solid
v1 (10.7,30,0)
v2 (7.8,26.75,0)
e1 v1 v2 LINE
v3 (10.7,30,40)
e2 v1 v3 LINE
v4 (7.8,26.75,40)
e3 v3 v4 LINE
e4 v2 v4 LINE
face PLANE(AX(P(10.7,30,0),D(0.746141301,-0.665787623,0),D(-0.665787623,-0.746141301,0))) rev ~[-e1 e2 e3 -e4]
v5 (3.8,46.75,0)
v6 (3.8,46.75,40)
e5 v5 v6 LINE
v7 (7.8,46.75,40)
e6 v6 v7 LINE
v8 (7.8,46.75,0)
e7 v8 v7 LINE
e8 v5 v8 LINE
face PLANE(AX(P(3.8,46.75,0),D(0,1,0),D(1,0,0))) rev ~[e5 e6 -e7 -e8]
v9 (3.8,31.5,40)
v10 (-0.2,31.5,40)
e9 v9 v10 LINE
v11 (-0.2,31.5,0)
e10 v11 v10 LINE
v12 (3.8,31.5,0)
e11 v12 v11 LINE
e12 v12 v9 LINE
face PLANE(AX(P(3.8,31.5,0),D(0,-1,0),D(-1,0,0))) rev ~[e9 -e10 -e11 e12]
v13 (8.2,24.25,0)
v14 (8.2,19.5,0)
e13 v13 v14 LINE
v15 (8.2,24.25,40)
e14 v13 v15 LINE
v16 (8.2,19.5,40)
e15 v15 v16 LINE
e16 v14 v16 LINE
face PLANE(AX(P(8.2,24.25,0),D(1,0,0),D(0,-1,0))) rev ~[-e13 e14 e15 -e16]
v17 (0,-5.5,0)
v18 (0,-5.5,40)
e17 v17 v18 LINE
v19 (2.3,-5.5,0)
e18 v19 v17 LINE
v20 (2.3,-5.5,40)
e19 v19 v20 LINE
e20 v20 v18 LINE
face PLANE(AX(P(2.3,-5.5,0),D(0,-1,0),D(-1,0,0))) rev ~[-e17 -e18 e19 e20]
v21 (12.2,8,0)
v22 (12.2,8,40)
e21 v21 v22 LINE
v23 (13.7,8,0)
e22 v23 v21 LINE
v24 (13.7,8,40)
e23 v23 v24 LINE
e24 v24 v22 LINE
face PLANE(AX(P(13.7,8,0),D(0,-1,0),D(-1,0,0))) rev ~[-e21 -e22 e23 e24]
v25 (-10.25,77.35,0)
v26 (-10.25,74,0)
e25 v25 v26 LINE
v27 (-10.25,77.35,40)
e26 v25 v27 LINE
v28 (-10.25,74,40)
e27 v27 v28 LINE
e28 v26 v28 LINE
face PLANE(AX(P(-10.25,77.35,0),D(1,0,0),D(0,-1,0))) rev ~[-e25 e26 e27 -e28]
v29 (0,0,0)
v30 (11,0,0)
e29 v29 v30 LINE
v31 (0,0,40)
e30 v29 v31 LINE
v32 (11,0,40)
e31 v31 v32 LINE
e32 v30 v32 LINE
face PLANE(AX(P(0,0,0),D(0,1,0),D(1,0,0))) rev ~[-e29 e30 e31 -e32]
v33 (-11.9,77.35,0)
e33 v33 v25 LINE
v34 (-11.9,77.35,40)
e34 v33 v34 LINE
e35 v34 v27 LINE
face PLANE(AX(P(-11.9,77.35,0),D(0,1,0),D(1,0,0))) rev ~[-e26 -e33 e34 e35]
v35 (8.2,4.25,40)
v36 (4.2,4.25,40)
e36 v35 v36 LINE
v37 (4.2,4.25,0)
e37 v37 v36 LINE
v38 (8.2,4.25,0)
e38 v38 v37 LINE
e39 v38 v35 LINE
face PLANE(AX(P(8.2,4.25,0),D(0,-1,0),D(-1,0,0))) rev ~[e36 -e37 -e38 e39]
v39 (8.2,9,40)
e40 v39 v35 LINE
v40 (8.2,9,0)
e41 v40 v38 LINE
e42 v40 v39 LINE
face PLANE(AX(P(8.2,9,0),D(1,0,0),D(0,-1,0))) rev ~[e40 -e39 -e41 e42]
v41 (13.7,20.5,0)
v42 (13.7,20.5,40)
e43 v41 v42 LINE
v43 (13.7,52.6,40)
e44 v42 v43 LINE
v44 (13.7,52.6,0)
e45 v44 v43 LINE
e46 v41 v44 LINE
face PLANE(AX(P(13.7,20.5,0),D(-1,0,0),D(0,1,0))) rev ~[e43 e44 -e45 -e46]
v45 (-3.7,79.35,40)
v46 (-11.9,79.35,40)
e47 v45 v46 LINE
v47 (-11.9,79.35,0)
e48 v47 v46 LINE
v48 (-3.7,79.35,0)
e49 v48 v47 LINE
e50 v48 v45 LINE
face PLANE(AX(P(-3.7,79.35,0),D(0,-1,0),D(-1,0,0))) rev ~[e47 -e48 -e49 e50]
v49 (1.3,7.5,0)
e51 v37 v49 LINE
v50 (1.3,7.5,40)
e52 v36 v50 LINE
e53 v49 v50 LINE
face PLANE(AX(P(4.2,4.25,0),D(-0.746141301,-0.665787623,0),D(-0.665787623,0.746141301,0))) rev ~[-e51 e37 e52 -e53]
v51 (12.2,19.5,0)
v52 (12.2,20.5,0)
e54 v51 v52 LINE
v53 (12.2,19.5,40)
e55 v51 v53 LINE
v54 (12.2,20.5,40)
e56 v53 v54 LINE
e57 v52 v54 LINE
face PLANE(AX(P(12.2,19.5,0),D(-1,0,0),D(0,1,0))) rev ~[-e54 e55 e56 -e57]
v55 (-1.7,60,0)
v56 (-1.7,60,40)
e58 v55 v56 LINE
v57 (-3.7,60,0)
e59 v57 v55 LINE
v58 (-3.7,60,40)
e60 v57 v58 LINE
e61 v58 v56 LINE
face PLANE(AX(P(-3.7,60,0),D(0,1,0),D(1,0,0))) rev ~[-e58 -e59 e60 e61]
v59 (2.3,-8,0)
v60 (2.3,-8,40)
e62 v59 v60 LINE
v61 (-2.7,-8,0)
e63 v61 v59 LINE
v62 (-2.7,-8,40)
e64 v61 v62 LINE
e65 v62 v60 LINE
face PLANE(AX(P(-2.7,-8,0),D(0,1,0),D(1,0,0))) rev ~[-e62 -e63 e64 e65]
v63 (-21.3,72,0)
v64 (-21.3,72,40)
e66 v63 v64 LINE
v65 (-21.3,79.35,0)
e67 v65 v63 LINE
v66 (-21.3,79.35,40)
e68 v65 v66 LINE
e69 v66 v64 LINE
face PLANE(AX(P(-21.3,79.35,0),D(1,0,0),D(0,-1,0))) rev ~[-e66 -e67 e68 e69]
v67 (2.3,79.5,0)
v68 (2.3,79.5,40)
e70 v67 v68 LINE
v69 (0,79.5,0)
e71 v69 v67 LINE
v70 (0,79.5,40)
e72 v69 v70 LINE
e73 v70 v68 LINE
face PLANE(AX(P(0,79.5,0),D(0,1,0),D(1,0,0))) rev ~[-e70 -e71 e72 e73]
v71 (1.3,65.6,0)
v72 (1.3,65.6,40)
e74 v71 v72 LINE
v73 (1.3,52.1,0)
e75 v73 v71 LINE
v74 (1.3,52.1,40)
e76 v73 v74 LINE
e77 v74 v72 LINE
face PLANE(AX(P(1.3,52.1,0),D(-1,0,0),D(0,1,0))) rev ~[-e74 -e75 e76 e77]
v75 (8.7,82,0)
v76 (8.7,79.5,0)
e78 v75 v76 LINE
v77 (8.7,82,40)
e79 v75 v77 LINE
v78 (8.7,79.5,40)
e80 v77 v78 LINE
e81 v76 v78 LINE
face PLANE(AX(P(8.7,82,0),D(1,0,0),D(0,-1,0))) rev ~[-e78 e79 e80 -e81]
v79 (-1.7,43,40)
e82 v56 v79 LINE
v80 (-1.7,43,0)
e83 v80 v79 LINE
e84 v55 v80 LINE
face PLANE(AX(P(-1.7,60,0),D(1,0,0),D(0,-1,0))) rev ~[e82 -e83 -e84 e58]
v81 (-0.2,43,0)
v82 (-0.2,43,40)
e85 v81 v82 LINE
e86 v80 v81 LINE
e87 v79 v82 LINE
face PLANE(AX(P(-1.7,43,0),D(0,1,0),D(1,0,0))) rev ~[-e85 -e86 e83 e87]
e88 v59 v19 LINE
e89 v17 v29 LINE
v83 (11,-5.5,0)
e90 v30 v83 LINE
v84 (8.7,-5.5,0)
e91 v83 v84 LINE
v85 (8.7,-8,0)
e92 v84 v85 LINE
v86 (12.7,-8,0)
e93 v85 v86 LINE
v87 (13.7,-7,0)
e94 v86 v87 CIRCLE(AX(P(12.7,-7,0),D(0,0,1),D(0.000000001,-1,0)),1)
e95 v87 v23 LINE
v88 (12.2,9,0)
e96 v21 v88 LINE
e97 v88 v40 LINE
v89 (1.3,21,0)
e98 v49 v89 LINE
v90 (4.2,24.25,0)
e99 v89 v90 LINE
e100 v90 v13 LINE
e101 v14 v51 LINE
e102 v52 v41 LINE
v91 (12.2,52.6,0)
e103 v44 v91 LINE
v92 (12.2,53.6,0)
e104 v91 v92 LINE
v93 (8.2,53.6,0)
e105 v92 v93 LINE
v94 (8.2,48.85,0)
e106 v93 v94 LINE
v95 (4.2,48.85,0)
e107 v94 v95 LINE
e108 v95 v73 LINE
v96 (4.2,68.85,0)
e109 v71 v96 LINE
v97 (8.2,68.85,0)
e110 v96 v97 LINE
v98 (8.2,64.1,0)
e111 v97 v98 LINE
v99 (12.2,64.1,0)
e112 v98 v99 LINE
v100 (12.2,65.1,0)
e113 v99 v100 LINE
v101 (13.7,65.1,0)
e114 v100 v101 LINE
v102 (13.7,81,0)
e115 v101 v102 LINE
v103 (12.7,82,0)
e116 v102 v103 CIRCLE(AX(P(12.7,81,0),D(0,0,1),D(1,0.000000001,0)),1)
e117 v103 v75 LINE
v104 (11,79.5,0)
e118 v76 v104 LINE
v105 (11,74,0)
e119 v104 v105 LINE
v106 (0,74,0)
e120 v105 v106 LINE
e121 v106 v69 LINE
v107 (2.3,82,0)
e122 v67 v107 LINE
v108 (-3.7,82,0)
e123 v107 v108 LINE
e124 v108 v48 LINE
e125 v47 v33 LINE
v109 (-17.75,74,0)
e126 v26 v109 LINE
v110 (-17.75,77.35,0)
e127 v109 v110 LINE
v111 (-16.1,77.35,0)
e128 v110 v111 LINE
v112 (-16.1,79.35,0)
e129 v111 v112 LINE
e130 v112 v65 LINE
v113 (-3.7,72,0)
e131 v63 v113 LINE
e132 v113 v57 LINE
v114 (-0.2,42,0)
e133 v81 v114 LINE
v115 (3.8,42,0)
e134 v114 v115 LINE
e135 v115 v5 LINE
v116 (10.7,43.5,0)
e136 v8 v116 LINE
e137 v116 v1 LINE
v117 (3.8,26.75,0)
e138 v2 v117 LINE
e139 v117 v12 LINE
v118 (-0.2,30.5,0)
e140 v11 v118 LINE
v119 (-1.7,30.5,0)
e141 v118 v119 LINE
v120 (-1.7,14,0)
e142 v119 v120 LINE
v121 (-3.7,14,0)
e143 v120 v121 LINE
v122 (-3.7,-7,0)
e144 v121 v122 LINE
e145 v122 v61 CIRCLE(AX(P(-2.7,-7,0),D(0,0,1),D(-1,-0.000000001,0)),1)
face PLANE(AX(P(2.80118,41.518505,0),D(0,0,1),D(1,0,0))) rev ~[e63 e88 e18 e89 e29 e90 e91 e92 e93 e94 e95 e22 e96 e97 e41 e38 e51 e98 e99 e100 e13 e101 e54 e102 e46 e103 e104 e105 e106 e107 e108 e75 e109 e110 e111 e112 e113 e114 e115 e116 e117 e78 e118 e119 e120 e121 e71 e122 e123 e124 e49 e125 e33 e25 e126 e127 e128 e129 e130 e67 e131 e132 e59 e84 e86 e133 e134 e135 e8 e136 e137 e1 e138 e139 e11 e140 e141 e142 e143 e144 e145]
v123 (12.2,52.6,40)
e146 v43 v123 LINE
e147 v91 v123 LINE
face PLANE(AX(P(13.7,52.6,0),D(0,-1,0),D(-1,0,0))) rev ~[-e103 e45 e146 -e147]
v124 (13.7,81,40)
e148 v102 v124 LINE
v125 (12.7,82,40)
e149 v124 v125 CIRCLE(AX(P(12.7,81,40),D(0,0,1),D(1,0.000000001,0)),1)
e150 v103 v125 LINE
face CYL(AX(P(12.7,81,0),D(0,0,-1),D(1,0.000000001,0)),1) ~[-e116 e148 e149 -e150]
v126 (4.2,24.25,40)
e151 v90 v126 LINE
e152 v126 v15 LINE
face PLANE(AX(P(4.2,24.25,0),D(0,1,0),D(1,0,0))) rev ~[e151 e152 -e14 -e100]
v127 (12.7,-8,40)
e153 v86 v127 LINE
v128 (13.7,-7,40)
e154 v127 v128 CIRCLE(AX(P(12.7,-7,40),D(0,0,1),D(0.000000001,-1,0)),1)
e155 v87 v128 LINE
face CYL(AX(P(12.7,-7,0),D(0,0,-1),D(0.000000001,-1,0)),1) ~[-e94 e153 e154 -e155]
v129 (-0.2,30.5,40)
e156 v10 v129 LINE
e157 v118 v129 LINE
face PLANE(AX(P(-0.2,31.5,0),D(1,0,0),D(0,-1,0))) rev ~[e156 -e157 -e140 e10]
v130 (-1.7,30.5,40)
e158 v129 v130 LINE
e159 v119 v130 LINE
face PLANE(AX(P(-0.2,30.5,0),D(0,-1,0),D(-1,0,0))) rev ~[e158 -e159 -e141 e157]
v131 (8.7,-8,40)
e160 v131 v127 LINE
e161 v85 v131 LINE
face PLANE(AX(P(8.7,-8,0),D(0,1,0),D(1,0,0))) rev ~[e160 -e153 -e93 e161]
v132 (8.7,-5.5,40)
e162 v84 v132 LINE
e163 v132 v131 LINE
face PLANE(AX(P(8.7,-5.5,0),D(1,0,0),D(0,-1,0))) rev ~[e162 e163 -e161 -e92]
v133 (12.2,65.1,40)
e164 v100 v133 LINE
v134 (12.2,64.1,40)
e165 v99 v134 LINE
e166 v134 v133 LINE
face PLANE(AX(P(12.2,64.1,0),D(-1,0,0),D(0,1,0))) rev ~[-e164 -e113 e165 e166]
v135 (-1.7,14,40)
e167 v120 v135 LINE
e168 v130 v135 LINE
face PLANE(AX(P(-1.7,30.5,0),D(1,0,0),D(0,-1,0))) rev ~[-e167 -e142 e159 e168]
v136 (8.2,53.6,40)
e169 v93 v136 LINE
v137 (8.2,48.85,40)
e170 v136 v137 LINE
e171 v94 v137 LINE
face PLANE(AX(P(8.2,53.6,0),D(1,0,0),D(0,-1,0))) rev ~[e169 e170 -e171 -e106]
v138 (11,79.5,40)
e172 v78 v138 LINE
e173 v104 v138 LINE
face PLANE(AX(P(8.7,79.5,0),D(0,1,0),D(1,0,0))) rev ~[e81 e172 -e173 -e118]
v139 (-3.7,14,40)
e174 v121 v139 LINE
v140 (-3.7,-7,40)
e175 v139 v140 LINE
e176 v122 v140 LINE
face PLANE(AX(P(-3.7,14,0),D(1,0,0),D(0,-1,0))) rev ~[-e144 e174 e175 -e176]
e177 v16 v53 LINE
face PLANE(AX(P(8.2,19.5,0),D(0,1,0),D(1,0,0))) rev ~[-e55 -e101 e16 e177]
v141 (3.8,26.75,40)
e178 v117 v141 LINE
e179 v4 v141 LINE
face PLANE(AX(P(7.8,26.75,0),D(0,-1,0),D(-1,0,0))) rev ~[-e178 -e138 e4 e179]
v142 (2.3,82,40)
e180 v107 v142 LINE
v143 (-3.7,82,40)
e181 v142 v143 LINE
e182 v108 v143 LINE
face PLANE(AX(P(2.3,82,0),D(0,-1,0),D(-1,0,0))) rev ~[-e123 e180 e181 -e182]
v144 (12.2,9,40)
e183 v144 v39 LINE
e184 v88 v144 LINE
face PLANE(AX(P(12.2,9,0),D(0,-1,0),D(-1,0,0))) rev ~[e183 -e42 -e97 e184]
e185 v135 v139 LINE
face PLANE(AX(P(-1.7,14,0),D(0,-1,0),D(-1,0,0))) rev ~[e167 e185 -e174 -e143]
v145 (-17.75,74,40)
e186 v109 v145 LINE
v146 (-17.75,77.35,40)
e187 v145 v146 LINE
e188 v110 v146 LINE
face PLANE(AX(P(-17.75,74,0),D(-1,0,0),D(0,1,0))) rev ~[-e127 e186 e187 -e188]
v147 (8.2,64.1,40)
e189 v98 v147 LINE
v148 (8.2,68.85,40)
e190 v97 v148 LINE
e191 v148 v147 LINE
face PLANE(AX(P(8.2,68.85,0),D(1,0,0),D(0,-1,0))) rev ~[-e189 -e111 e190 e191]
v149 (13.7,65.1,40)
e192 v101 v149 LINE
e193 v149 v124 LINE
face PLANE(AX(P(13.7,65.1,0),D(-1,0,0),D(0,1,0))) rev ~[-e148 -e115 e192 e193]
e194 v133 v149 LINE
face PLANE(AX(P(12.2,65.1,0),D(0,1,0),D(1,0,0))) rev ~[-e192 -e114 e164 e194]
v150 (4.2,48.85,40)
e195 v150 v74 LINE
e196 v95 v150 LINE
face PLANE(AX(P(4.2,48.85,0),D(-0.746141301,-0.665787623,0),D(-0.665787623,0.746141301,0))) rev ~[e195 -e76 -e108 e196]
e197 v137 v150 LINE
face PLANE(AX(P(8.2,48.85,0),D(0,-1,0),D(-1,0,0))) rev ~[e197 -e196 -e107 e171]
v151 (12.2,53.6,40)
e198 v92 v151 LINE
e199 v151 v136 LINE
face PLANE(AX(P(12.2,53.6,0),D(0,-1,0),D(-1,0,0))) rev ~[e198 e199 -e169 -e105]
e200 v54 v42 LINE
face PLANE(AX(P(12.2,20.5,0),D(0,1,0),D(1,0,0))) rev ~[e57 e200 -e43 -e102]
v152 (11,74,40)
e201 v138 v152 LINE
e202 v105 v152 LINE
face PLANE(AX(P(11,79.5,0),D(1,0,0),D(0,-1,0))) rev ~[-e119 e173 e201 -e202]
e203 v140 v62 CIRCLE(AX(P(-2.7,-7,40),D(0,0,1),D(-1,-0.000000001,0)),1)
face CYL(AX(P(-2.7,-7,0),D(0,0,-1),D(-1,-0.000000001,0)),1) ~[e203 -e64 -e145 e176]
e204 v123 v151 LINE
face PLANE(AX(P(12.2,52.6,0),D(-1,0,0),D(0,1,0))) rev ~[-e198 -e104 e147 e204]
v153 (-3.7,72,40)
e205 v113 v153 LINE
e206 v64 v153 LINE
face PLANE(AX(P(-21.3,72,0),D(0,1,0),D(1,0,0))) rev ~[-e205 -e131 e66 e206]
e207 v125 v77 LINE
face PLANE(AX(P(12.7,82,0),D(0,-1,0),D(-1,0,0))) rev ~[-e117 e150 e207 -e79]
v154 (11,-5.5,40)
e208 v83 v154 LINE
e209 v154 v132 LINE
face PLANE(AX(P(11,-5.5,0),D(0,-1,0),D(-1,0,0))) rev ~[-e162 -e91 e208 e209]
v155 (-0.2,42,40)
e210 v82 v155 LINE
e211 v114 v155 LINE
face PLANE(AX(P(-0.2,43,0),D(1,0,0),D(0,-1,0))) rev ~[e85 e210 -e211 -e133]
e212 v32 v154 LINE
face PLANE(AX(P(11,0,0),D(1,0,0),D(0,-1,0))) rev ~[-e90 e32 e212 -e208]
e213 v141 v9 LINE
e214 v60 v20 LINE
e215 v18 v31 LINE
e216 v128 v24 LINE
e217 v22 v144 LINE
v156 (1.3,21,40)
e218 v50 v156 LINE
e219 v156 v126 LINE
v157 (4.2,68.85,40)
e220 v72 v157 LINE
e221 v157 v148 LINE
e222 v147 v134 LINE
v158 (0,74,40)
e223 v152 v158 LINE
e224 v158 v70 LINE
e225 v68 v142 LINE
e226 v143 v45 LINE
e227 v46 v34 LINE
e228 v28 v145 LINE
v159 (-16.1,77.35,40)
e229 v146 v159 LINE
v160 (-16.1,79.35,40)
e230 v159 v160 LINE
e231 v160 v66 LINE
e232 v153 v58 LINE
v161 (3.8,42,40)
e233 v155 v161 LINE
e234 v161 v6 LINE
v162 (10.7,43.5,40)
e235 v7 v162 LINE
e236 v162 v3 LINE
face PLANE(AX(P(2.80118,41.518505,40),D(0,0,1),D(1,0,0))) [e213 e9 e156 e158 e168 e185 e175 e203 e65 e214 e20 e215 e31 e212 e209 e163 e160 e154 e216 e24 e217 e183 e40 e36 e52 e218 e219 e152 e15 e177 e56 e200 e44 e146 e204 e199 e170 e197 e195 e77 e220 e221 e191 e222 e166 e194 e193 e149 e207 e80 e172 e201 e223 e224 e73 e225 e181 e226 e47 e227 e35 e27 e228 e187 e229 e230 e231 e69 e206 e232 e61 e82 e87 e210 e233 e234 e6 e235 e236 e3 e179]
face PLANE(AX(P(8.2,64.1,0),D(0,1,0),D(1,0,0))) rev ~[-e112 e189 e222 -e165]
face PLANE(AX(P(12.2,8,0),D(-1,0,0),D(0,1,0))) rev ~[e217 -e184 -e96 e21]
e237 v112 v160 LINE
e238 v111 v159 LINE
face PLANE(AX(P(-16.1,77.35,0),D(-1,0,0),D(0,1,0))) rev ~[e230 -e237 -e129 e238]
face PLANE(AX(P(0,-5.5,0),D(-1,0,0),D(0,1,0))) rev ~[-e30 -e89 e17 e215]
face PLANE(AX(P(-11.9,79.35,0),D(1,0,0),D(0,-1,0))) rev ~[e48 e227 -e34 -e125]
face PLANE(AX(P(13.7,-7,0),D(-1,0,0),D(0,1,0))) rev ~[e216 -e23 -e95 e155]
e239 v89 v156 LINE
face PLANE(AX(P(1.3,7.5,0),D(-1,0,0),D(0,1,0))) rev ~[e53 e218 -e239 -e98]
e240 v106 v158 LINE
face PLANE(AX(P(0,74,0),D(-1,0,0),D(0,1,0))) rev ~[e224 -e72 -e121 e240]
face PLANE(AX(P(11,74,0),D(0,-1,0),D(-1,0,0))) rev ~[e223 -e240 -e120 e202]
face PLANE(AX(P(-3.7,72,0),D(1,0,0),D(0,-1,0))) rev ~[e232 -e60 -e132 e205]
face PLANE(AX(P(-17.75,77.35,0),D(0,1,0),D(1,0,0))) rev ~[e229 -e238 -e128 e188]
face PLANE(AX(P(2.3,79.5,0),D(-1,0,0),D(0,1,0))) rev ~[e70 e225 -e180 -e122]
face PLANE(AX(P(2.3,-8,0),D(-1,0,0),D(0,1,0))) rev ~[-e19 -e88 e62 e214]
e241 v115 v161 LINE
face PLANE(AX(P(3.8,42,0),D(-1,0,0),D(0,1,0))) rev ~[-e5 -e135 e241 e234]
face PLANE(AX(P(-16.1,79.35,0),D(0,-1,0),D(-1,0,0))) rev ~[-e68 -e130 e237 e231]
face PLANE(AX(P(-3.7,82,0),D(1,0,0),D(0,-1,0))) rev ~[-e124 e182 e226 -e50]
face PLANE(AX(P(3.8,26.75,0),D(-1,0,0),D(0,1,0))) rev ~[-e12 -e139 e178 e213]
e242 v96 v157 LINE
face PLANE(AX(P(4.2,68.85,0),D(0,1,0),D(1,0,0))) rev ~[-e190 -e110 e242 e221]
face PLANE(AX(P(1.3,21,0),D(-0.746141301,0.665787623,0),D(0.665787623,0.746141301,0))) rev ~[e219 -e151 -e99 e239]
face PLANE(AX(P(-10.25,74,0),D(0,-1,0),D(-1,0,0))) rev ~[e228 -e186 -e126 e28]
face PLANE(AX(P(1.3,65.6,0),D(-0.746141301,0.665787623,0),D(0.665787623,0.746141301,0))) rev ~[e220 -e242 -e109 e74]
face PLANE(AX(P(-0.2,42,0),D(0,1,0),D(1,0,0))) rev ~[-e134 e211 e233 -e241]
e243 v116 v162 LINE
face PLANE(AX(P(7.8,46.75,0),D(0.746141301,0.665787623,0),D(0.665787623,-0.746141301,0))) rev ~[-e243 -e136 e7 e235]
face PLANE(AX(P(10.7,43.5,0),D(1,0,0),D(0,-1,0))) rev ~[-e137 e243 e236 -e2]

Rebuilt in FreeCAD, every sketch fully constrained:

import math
import FreeCAD as App
import Part
import Sketcher

V = App.Vector

doc = App.newDocument("Part")
params = doc.addObject("Spreadsheet::Sheet", "Params")
for row, (alias, value) in enumerate([
    ("sketch1_radius", "1 mm"),
    ("sketch1_width", "5 mm"),
    ("sketch1_width2", "11 mm"),
    ("sketch1_width3", "4 mm"),
    ("sketch1_width4", "2 mm"),
    ("pad1_length", "40 mm"),
], start=1):
    params.set(f"A{row}", alias)
    params.set(f"B{row}", "=" + value)
    params.setAlias(f"B{row}", alias)

body = doc.addObject("PartDesign::Body", "Body")

# Sketch on XY plane
sketch1 = body.newObject("Sketcher::SketchObject", "Sketch")
sketch1.AttachmentSupport = (doc.getObject("XY_Plane"), [""])
sketch1.MapMode = "FlatFace"
sketch1.addGeometry(Part.LineSegment(V(-2.7, -8, 0), V(2.3, -8, 0)), False)
sketch1.addGeometry(Part.LineSegment(V(2.3, -8, 0), V(2.3, -5.5, 0)), False)
sketch1.addGeometry(Part.LineSegment(V(2.3, -5.5, 0), V(0, -5.5, 0)), False)
sketch1.addGeometry(Part.LineSegment(V(0, -5.5, 0), V(0, 0, 0)), False)
sketch1.addGeometry(Part.LineSegment(V(0, 0, 0), V(11, 0, 0)), False)
sketch1.addGeometry(Part.LineSegment(V(11, 0, 0), V(11, -5.5, 0)), False)
sketch1.addGeometry(Part.LineSegment(V(11, -5.5, 0), V(8.7, -5.5, 0)), False)
sketch1.addGeometry(Part.LineSegment(V(8.7, -5.5, 0), V(8.7, -8, 0)), False)
sketch1.addGeometry(Part.LineSegment(V(8.7, -8, 0), V(12.7, -8, 0)), False)
sketch1.addGeometry(Part.ArcOfCircle(Part.Circle(V(12.7, -7, 0), V(0, 0, 1), 1), math.radians(-90), math.radians(0)), False)
sketch1.addGeometry(Part.LineSegment(V(13.7, -7, 0), V(13.7, 8, 0)), False)
sketch1.addGeometry(Part.LineSegment(V(13.7, 8, 0), V(12.2, 8, 0)), False)
sketch1.addGeometry(Part.LineSegment(V(12.2, 8, 0), V(12.2, 9, 0)), False)
sketch1.addGeometry(Part.LineSegment(V(12.2, 9, 0), V(8.2, 9, 0)), False)
sketch1.addGeometry(Part.LineSegment(V(8.2, 9, 0), V(8.2, 4.2, 0)), False)
sketch1.addGeometry(Part.LineSegment(V(8.2, 4.2, 0), V(4.2, 4.2, 0)), False)
sketch1.addGeometry(Part.LineSegment(V(4.2, 4.2, 0), V(1.3, 7.5, 0)), False)
sketch1.addGeometry(Part.LineSegment(V(1.3, 7.5, 0), V(1.3, 21, 0)), False)
sketch1.addGeometry(Part.LineSegment(V(1.3, 21, 0), V(4.2, 24.2, 0)), False)
sketch1.addGeometry(Part.LineSegment(V(4.2, 24.2, 0), V(8.2, 24.2, 0)), False)
sketch1.addGeometry(Part.LineSegment(V(8.2, 24.2, 0), V(8.2, 19.5, 0)), False)
sketch1.addGeometry(Part.LineSegment(V(8.2, 19.5, 0), V(12.2, 19.5, 0)), False)
sketch1.addGeometry(Part.LineSegment(V(12.2, 19.5, 0), V(12.2, 20.5, 0)), False)
sketch1.addGeometry(Part.LineSegment(V(12.2, 20.5, 0), V(13.7, 20.5, 0)), False)
sketch1.addGeometry(Part.LineSegment(V(13.7, 20.5, 0), V(13.7, 52.6, 0)), False)
sketch1.addGeometry(Part.LineSegment(V(13.7, 52.6, 0), V(12.2, 52.6, 0)), False)
sketch1.addGeometry(Part.LineSegment(V(12.2, 52.6, 0), V(12.2, 53.6, 0)), False)
sketch1.addGeometry(Part.LineSegment(V(12.2, 53.6, 0), V(8.2, 53.6, 0)), False)
sketch1.addGeometry(Part.LineSegment(V(8.2, 53.6, 0), V(8.2, 48.9, 0)), False)
sketch1.addGeometry(Part.LineSegment(V(8.2, 48.9, 0), V(4.2, 48.9, 0)), False)
sketch1.addGeometry(Part.LineSegment(V(4.2, 48.9, 0), V(1.3, 52.1, 0)), False)
sketch1.addGeometry(Part.LineSegment(V(1.3, 52.1, 0), V(1.3, 65.6, 0)), False)
sketch1.addGeometry(Part.LineSegment(V(1.3, 65.6, 0), V(4.2, 68.8, 0)), False)
sketch1.addGeometry(Part.LineSegment(V(4.2, 68.8, 0), V(8.2, 68.8, 0)), False)
sketch1.addGeometry(Part.LineSegment(V(8.2, 68.8, 0), V(8.2, 64.1, 0)), False)
sketch1.addGeometry(Part.LineSegment(V(8.2, 64.1, 0), V(12.2, 64.1, 0)), False)
sketch1.addGeometry(Part.LineSegment(V(12.2, 64.1, 0), V(12.2, 65.1, 0)), False)
sketch1.addGeometry(Part.LineSegment(V(12.2, 65.1, 0), V(13.7, 65.1, 0)), False)
sketch1.addGeometry(Part.LineSegment(V(13.7, 65.1, 0), V(13.7, 81, 0)), False)
sketch1.addGeometry(Part.ArcOfCircle(Part.Circle(V(12.7, 81, 0), V(0, 0, 1), 1), math.radians(0), math.radians(90)), False)
sketch1.addGeometry(Part.LineSegment(V(12.7, 82, 0), V(8.7, 82, 0)), False)
sketch1.addGeometry(Part.LineSegment(V(8.7, 82, 0), V(8.7, 79.5, 0)), False)
sketch1.addGeometry(Part.LineSegment(V(8.7, 79.5, 0), V(11, 79.5, 0)), False)
sketch1.addGeometry(Part.LineSegment(V(11, 79.5, 0), V(11, 74, 0)), False)
sketch1.addGeometry(Part.LineSegment(V(11, 74, 0), V(0, 74, 0)), False)
sketch1.addGeometry(Part.LineSegment(V(0, 74, 0), V(0, 79.5, 0)), False)
sketch1.addGeometry(Part.LineSegment(V(0, 79.5, 0), V(2.3, 79.5, 0)), False)
sketch1.addGeometry(Part.LineSegment(V(2.3, 79.5, 0), V(2.3, 82, 0)), False)
sketch1.addGeometry(Part.LineSegment(V(2.3, 82, 0), V(-3.7, 82, 0)), False)
sketch1.addGeometry(Part.LineSegment(V(-3.7, 82, 0), V(-3.7, 79.3, 0)), False)
sketch1.addGeometry(Part.LineSegment(V(-3.7, 79.3, 0), V(-11.9, 79.3, 0)), False)
sketch1.addGeometry(Part.LineSegment(V(-11.9, 79.3, 0), V(-11.9, 77.3, 0)), False)
sketch1.addGeometry(Part.LineSegment(V(-11.9, 77.3, 0), V(-10.2, 77.3, 0)), False)
sketch1.addGeometry(Part.LineSegment(V(-10.2, 77.3, 0), V(-10.2, 74, 0)), False)
sketch1.addGeometry(Part.LineSegment(V(-10.2, 74, 0), V(-17.8, 74, 0)), False)
sketch1.addGeometry(Part.LineSegment(V(-17.8, 74, 0), V(-17.8, 77.3, 0)), False)
sketch1.addGeometry(Part.LineSegment(V(-17.8, 77.3, 0), V(-16.1, 77.3, 0)), False)
sketch1.addGeometry(Part.LineSegment(V(-16.1, 77.3, 0), V(-16.1, 79.3, 0)), False)
sketch1.addGeometry(Part.LineSegment(V(-16.1, 79.3, 0), V(-21.3, 79.3, 0)), False)
sketch1.addGeometry(Part.LineSegment(V(-21.3, 79.3, 0), V(-21.3, 72, 0)), False)
sketch1.addGeometry(Part.LineSegment(V(-21.3, 72, 0), V(-3.7, 72, 0)), False)
sketch1.addGeometry(Part.LineSegment(V(-3.7, 72, 0), V(-3.7, 60, 0)), False)
sketch1.addGeometry(Part.LineSegment(V(-3.7, 60, 0), V(-1.7, 60, 0)), False)
sketch1.addGeometry(Part.LineSegment(V(-1.7, 60, 0), V(-1.7, 43, 0)), False)
sketch1.addGeometry(Part.LineSegment(V(-1.7, 43, 0), V(-0.2, 43, 0)), False)
sketch1.addGeometry(Part.LineSegment(V(-0.2, 43, 0), V(-0.2, 42, 0)), False)
sketch1.addGeometry(Part.LineSegment(V(-0.2, 42, 0), V(3.8, 42, 0)), False)
sketch1.addGeometry(Part.LineSegment(V(3.8, 42, 0), V(3.8, 46.8, 0)), False)
sketch1.addGeometry(Part.LineSegment(V(3.8, 46.8, 0), V(7.8, 46.8, 0)), False)
sketch1.addGeometry(Part.LineSegment(V(7.8, 46.8, 0), V(10.7, 43.5, 0)), False)
sketch1.addGeometry(Part.LineSegment(V(10.7, 43.5, 0), V(10.7, 30, 0)), False)
sketch1.addGeometry(Part.LineSegment(V(10.7, 30, 0), V(7.8, 26.8, 0)), False)
sketch1.addGeometry(Part.LineSegment(V(7.8, 26.8, 0), V(3.8, 26.8, 0)), False)
sketch1.addGeometry(Part.LineSegment(V(3.8, 26.8, 0), V(3.8, 31.5, 0)), False)
sketch1.addGeometry(Part.LineSegment(V(3.8, 31.5, 0), V(-0.2, 31.5, 0)), False)
sketch1.addGeometry(Part.LineSegment(V(-0.2, 31.5, 0), V(-0.2, 30.5, 0)), False)
sketch1.addGeometry(Part.LineSegment(V(-0.2, 30.5, 0), V(-1.7, 30.5, 0)), False)
sketch1.addGeometry(Part.LineSegment(V(-1.7, 30.5, 0), V(-1.7, 14, 0)), False)
sketch1.addGeometry(Part.LineSegment(V(-1.7, 14, 0), V(-3.7, 14, 0)), False)
sketch1.addGeometry(Part.LineSegment(V(-3.7, 14, 0), V(-3.7, -7, 0)), False)
sketch1.addGeometry(Part.ArcOfCircle(Part.Circle(V(-2.7, -7, 0), V(0, 0, 1), 1), math.radians(-180), math.radians(-90)), False)
sketch1.addConstraint(Sketcher.Constraint("Coincident", 0, 2, 1, 1))
sketch1.addConstraint(Sketcher.Constraint("Coincident", 1, 2, 2, 1))
sketch1.addConstraint(Sketcher.Constraint("Coincident", 2, 2, 3, 1))
sketch1.addConstraint(Sketcher.Constraint("Coincident", 3, 2, 4, 1))
sketch1.addConstraint(Sketcher.Constraint("Coincident", 4, 2, 5, 1))
sketch1.addConstraint(Sketcher.Constraint("Coincident", 5, 2, 6, 1))
sketch1.addConstraint(Sketcher.Constraint("Coincident", 6, 2, 7, 1))
sketch1.addConstraint(Sketcher.Constraint("Coincident", 7, 2, 8, 1))
sketch1.addConstraint(Sketcher.Constraint("Tangent", 8, 2, 9, 1))
sketch1.addConstraint(Sketcher.Constraint("Tangent", 9, 2, 10, 1))
sketch1.addConstraint(Sketcher.Constraint("Coincident", 10, 2, 11, 1))
sketch1.addConstraint(Sketcher.Constraint("Coincident", 11, 2, 12, 1))
sketch1.addConstraint(Sketcher.Constraint("Coincident", 12, 2, 13, 1))
sketch1.addConstraint(Sketcher.Constraint("Coincident", 13, 2, 14, 1))
sketch1.addConstraint(Sketcher.Constraint("Coincident", 14, 2, 15, 1))
sketch1.addConstraint(Sketcher.Constraint("Coincident", 15, 2, 16, 1))
sketch1.addConstraint(Sketcher.Constraint("Coincident", 16, 2, 17, 1))
sketch1.addConstraint(Sketcher.Constraint("Coincident", 17, 2, 18, 1))
sketch1.addConstraint(Sketcher.Constraint("Coincident", 18, 2, 19, 1))
sketch1.addConstraint(Sketcher.Constraint("Coincident", 19, 2, 20, 1))
sketch1.addConstraint(Sketcher.Constraint("Coincident", 20, 2, 21, 1))
sketch1.addConstraint(Sketcher.Constraint("Coincident", 21, 2, 22, 1))
sketch1.addConstraint(Sketcher.Constraint("Coincident", 22, 2, 23, 1))
sketch1.addConstraint(Sketcher.Constraint("Coincident", 23, 2, 24, 1))
sketch1.addConstraint(Sketcher.Constraint("Coincident", 24, 2, 25, 1))
sketch1.addConstraint(Sketcher.Constraint("Coincident", 25, 2, 26, 1))
sketch1.addConstraint(Sketcher.Constraint("Coincident", 26, 2, 27, 1))
sketch1.addConstraint(Sketcher.Constraint("Coincident", 27, 2, 28, 1))
sketch1.addConstraint(Sketcher.Constraint("Coincident", 28, 2, 29, 1))
sketch1.addConstraint(Sketcher.Constraint("Coincident", 29, 2, 30, 1))
sketch1.addConstraint(Sketcher.Constraint("Coincident", 30, 2, 31, 1))
sketch1.addConstraint(Sketcher.Constraint("Coincident", 31, 2, 32, 1))
sketch1.addConstraint(Sketcher.Constraint("Coincident", 32, 2, 33, 1))
sketch1.addConstraint(Sketcher.Constraint("Coincident", 33, 2, 34, 1))
sketch1.addConstraint(Sketcher.Constraint("Coincident", 34, 2, 35, 1))
sketch1.addConstraint(Sketcher.Constraint("Coincident", 35, 2, 36, 1))
sketch1.addConstraint(Sketcher.Constraint("Coincident", 36, 2, 37, 1))
sketch1.addConstraint(Sketcher.Constraint("Coincident", 37, 2, 38, 1))
sketch1.addConstraint(Sketcher.Constraint("Tangent", 38, 2, 39, 1))
sketch1.addConstraint(Sketcher.Constraint("Tangent", 39, 2, 40, 1))
sketch1.addConstraint(Sketcher.Constraint("Coincident", 40, 2, 41, 1))
sketch1.addConstraint(Sketcher.Constraint("Coincident", 41, 2, 42, 1))
sketch1.addConstraint(Sketcher.Constraint("Coincident", 42, 2, 43, 1))
sketch1.addConstraint(Sketcher.Constraint("Coincident", 43, 2, 44, 1))
sketch1.addConstraint(Sketcher.Constraint("Coincident", 44, 2, 45, 1))
sketch1.addConstraint(Sketcher.Constraint("Coincident", 45, 2, 46, 1))
sketch1.addConstraint(Sketcher.Constraint("Coincident", 46, 2, 47, 1))
sketch1.addConstraint(Sketcher.Constraint("Coincident", 47, 2, 48, 1))
sketch1.addConstraint(Sketcher.Constraint("Coincident", 48, 2, 49, 1))
sketch1.addConstraint(Sketcher.Constraint("Coincident", 49, 2, 50, 1))
sketch1.addConstraint(Sketcher.Constraint("Coincident", 50, 2, 51, 1))
sketch1.addConstraint(Sketcher.Constraint("Coincident", 51, 2, 52, 1))
sketch1.addConstraint(Sketcher.Constraint("Coincident", 52, 2, 53, 1))
sketch1.addConstraint(Sketcher.Constraint("Coincident", 53, 2, 54, 1))
sketch1.addConstraint(Sketcher.Constraint("Coincident", 54, 2, 55, 1))
sketch1.addConstraint(Sketcher.Constraint("Coincident", 55, 2, 56, 1))
sketch1.addConstraint(Sketcher.Constraint("Coincident", 56, 2, 57, 1))
sketch1.addConstraint(Sketcher.Constraint("Coincident", 57, 2, 58, 1))
sketch1.addConstraint(Sketcher.Constraint("Coincident", 58, 2, 59, 1))
sketch1.addConstraint(Sketcher.Constraint("Coincident", 59, 2, 60, 1))
sketch1.addConstraint(Sketcher.Constraint("Coincident", 60, 2, 61, 1))
sketch1.addConstraint(Sketcher.Constraint("Coincident", 61, 2, 62, 1))
sketch1.addConstraint(Sketcher.Constraint("Coincident", 62, 2, 63, 1))
sketch1.addConstraint(Sketcher.Constraint("Coincident", 63, 2, 64, 1))
sketch1.addConstraint(Sketcher.Constraint("Coincident", 64, 2, 65, 1))
sketch1.addConstraint(Sketcher.Constraint("Coincident", 65, 2, 66, 1))
sketch1.addConstraint(Sketcher.Constraint("Coincident", 66, 2, 67, 1))
sketch1.addConstraint(Sketcher.Constraint("Coincident", 67, 2, 68, 1))
sketch1.addConstraint(Sketcher.Constraint("Coincident", 68, 2, 69, 1))
sketch1.addConstraint(Sketcher.Constraint("Coincident", 69, 2, 70, 1))
sketch1.addConstraint(Sketcher.Constraint("Coincident", 70, 2, 71, 1))
sketch1.addConstraint(Sketcher.Constraint("Coincident", 71, 2, 72, 1))
sketch1.addConstraint(Sketcher.Constraint("Coincident", 72, 2, 73, 1))
sketch1.addConstraint(Sketcher.Constraint("Coincident", 73, 2, 74, 1))
sketch1.addConstraint(Sketcher.Constraint("Coincident", 74, 2, 75, 1))
sketch1.addConstraint(Sketcher.Constraint("Coincident", 75, 2, 76, 1))
sketch1.addConstraint(Sketcher.Constraint("Coincident", 76, 2, 77, 1))
sketch1.addConstraint(Sketcher.Constraint("Coincident", 77, 2, 78, 1))
sketch1.addConstraint(Sketcher.Constraint("Coincident", 78, 2, 79, 1))
sketch1.addConstraint(Sketcher.Constraint("Tangent", 79, 2, 80, 1))
sketch1.addConstraint(Sketcher.Constraint("Tangent", 80, 2, 0, 1))
sketch1.addConstraint(Sketcher.Constraint("Horizontal", 0))
sketch1.addConstraint(Sketcher.Constraint("Vertical", 1))
sketch1.addConstraint(Sketcher.Constraint("Horizontal", 2))
sketch1.addConstraint(Sketcher.Constraint("Vertical", 3))
sketch1.addConstraint(Sketcher.Constraint("Horizontal", 4))
sketch1.addConstraint(Sketcher.Constraint("Vertical", 5))
sketch1.addConstraint(Sketcher.Constraint("Horizontal", 6))
sketch1.addConstraint(Sketcher.Constraint("Vertical", 7))
sketch1.addConstraint(Sketcher.Constraint("Horizontal", 8))
sketch1.addConstraint(Sketcher.Constraint("Vertical", 10))
sketch1.addConstraint(Sketcher.Constraint("Horizontal", 11))
sketch1.addConstraint(Sketcher.Constraint("Vertical", 12))
sketch1.addConstraint(Sketcher.Constraint("Horizontal", 13))
sketch1.addConstraint(Sketcher.Constraint("Vertical", 14))
sketch1.addConstraint(Sketcher.Constraint("Horizontal", 15))
sketch1.addConstraint(Sketcher.Constraint("Vertical", 17))
sketch1.addConstraint(Sketcher.Constraint("Horizontal", 19))
sketch1.addConstraint(Sketcher.Constraint("Vertical", 20))
sketch1.addConstraint(Sketcher.Constraint("Horizontal", 21))
sketch1.addConstraint(Sketcher.Constraint("Vertical", 22))
sketch1.addConstraint(Sketcher.Constraint("Horizontal", 23))
sketch1.addConstraint(Sketcher.Constraint("Vertical", 24))
sketch1.addConstraint(Sketcher.Constraint("Horizontal", 25))
sketch1.addConstraint(Sketcher.Constraint("Vertical", 26))
sketch1.addConstraint(Sketcher.Constraint("Horizontal", 27))
sketch1.addConstraint(Sketcher.Constraint("Vertical", 28))
sketch1.addConstraint(Sketcher.Constraint("Horizontal", 29))
sketch1.addConstraint(Sketcher.Constraint("Vertical", 31))
sketch1.addConstraint(Sketcher.Constraint("Horizontal", 33))
sketch1.addConstraint(Sketcher.Constraint("Vertical", 34))
sketch1.addConstraint(Sketcher.Constraint("Horizontal", 35))
sketch1.addConstraint(Sketcher.Constraint("Vertical", 36))
sketch1.addConstraint(Sketcher.Constraint("Horizontal", 37))
sketch1.addConstraint(Sketcher.Constraint("Vertical", 38))
sketch1.addConstraint(Sketcher.Constraint("Horizontal", 40))
sketch1.addConstraint(Sketcher.Constraint("Vertical", 41))
sketch1.addConstraint(Sketcher.Constraint("Horizontal", 42))
sketch1.addConstraint(Sketcher.Constraint("Vertical", 43))
sketch1.addConstraint(Sketcher.Constraint("Horizontal", 44))
sketch1.addConstraint(Sketcher.Constraint("Vertical", 45))
sketch1.addConstraint(Sketcher.Constraint("Horizontal", 46))
sketch1.addConstraint(Sketcher.Constraint("Vertical", 47))
sketch1.addConstraint(Sketcher.Constraint("Horizontal", 48))
sketch1.addConstraint(Sketcher.Constraint("Vertical", 49))
sketch1.addConstraint(Sketcher.Constraint("Horizontal", 50))
sketch1.addConstraint(Sketcher.Constraint("Vertical", 51))
sketch1.addConstraint(Sketcher.Constraint("Horizontal", 52))
sketch1.addConstraint(Sketcher.Constraint("Vertical", 53))
sketch1.addConstraint(Sketcher.Constraint("Horizontal", 54))
sketch1.addConstraint(Sketcher.Constraint("Vertical", 55))
sketch1.addConstraint(Sketcher.Constraint("Horizontal", 56))
sketch1.addConstraint(Sketcher.Constraint("Vertical", 57))
sketch1.addConstraint(Sketcher.Constraint("Horizontal", 58))
sketch1.addConstraint(Sketcher.Constraint("Vertical", 59))
sketch1.addConstraint(Sketcher.Constraint("Horizontal", 60))
sketch1.addConstraint(Sketcher.Constraint("Vertical", 61))
sketch1.addConstraint(Sketcher.Constraint("Horizontal", 62))
sketch1.addConstraint(Sketcher.Constraint("Vertical", 63))
sketch1.addConstraint(Sketcher.Constraint("Horizontal", 64))
sketch1.addConstraint(Sketcher.Constraint("Vertical", 65))
sketch1.addConstraint(Sketcher.Constraint("Horizontal", 66))
sketch1.addConstraint(Sketcher.Constraint("Vertical", 67))
sketch1.addConstraint(Sketcher.Constraint("Horizontal", 68))
sketch1.addConstraint(Sketcher.Constraint("Vertical", 70))
sketch1.addConstraint(Sketcher.Constraint("Horizontal", 72))
sketch1.addConstraint(Sketcher.Constraint("Vertical", 73))
sketch1.addConstraint(Sketcher.Constraint("Horizontal", 74))
sketch1.addConstraint(Sketcher.Constraint("Vertical", 75))
sketch1.addConstraint(Sketcher.Constraint("Horizontal", 76))
sketch1.addConstraint(Sketcher.Constraint("Vertical", 77))
sketch1.addConstraint(Sketcher.Constraint("Horizontal", 78))
sketch1.addConstraint(Sketcher.Constraint("Vertical", 79))
sketch1.addConstraint(Sketcher.Constraint("Coincident", 3, 2, -1, 1))
sketch1.addConstraint(Sketcher.Constraint("Equal", 9, 39))
sketch1.addConstraint(Sketcher.Constraint("Equal", 39, 80))
sketch1.addConstraint(Sketcher.Constraint("PointOnObject", 44, 2, -2))
sketch1.addConstraint(Sketcher.Constraint("Parallel", 16, 30))
sketch1.addConstraint(Sketcher.Constraint("Parallel", 18, 32))
sketch1.addConstraint(Sketcher.Constraint("Parallel", 30, 69))
sketch1.addConstraint(Sketcher.Constraint("Parallel", 32, 71))
sketch1.addConstraint(Sketcher.Constraint("Horizontal", 9, 3, 80, 3))
sketch1.addConstraint(Sketcher.Constraint("Horizontal", 2, 2, 5, 2))
sketch1.addConstraint(Sketcher.Constraint("Horizontal", 42, 2, 45, 2))
sketch1.addConstraint(Sketcher.Constraint("Horizontal", 40, 2, 47, 2))
sketch1.addConstraint(Sketcher.Constraint("Horizontal", 44, 2, 53, 2))
sketch1.addConstraint(Sketcher.Constraint("Horizontal", 52, 2, 55, 2))
sketch1.addConstraint(Sketcher.Constraint("Horizontal", 50, 2, 57, 2))
sketch1.addConstraint(Sketcher.Constraint("Vertical", 9, 3, 39, 3))
sketch1.addConstraint(Sketcher.Constraint("Vertical", 15, 2, 18, 2))
sketch1.addConstraint(Sketcher.Constraint("Vertical", 14, 2, 19, 2))
sketch1.addConstraint(Sketcher.Constraint("Vertical", 12, 2, 21, 2))
sketch1.addConstraint(Sketcher.Constraint("Vertical", 10, 2, 23, 2))
sketch1.addConstraint(Sketcher.Constraint("Vertical", 22, 2, 25, 2))
sketch1.addConstraint(Sketcher.Constraint("Vertical", 20, 2, 27, 2))
sketch1.addConstraint(Sketcher.Constraint("Vertical", 18, 2, 29, 2))
sketch1.addConstraint(Sketcher.Constraint("Vertical", 17, 2, 30, 2))
sketch1.addConstraint(Sketcher.Constraint("Vertical", 29, 2, 32, 2))
sketch1.addConstraint(Sketcher.Constraint("Vertical", 28, 2, 33, 2))
sketch1.addConstraint(Sketcher.Constraint("Vertical", 26, 2, 35, 2))
sketch1.addConstraint(Sketcher.Constraint("Vertical", 7, 2, 40, 2))
sketch1.addConstraint(Sketcher.Constraint("Vertical", 5, 2, 42, 2))
sketch1.addConstraint(Sketcher.Constraint("Vertical", 1, 2, 46, 2))
sketch1.addConstraint(Sketcher.Constraint("Vertical", 49, 2, 60, 2))
sketch1.addConstraint(Sketcher.Constraint("Vertical", 68, 2, 71, 2))
sketch1.addConstraint(Sketcher.Constraint("Vertical", 67, 2, 72, 2))
sketch1.addConstraint(Sketcher.Constraint("Vertical", 65, 2, 74, 2))
sketch1.addConstraint(Sketcher.Constraint("Vertical", 63, 2, 76, 2))
sketch1.addConstraint(Sketcher.Constraint("Vertical", 61, 2, 78, 2))
sketch1.addConstraint(Sketcher.Constraint("Equal", 2, 6))
sketch1.addConstraint(Sketcher.Constraint("Equal", 8, 13))
sketch1.addConstraint(Sketcher.Constraint("Equal", 13, 15))
sketch1.addConstraint(Sketcher.Constraint("Equal", 52, 56))
sketch1.addConstraint(Sketcher.Constraint("Equal", 37, 64))
sketch1.addConstraint(Sketcher.Constraint("Equal", 40, 66))
sketch1.addConstraint(Sketcher.Constraint("Equal", 66, 68))
sketch1.addConstraint(Sketcher.Constraint("Equal", 14, 20))
sketch1.addConstraint(Sketcher.Constraint("Equal", 12, 22))
sketch1.addConstraint(Sketcher.Constraint("Equal", 22, 26))
sketch1.addConstraint(Sketcher.Constraint("Equal", 20, 28))
sketch1.addConstraint(Sketcher.Constraint("Equal", 17, 31))
sketch1.addConstraint(Sketcher.Constraint("Equal", 28, 34))
sketch1.addConstraint(Sketcher.Constraint("Equal", 26, 36))
sketch1.addConstraint(Sketcher.Constraint("Equal", 7, 41))
sketch1.addConstraint(Sketcher.Constraint("Equal", 5, 43))
sketch1.addConstraint(Sketcher.Constraint("Equal", 78, 51))
sketch1.addConstraint(Sketcher.Constraint("Equal", 36, 65))
sketch1.addConstraint(Sketcher.Constraint("Equal", 34, 67))
sketch1.addConstraint(Sketcher.Constraint("Equal", 31, 70))
sketch1.addConstraint(Sketcher.Constraint("Equal", 67, 73))
sketch1.addConstraint(Sketcher.Constraint("Equal", 65, 75))
sketch1.addConstraint(Sketcher.Constraint("Equal", 16, 18))
sketch1.addConstraint(Sketcher.Constraint("Equal", 32, 69))
sketch1.addConstraint(Sketcher.Constraint("Radius", 9, 1.0))
sketch1.addConstraint(Sketcher.Constraint("DistanceX", 0, 1, 0, 2, 5.0))
sketch1.addConstraint(Sketcher.Constraint("DistanceX", 4, 1, 4, 2, 11.0))
sketch1.addConstraint(Sketcher.Constraint("DistanceX", 8, 1, 8, 2, 4.0))
sketch1.addConstraint(Sketcher.Constraint("DistanceX", 62, 1, 62, 2, 2.0))
sketch1.addConstraint(Sketcher.Constraint("DistanceY", 10, 1, 10, 2, 15.0))
sketch1.addConstraint(Sketcher.Constraint("DistanceY", 12, 1, 12, 2, 1.0))
sketch1.addConstraint(Sketcher.Constraint("DistanceY", 61, 2, 61, 1, 12.0))
sketch1.addConstraint(Sketcher.Constraint("DistanceY", 63, 2, 63, 1, 17.0))
sketch1.addConstraint(Sketcher.Constraint("DistanceY", 79, 2, 79, 1, 21.0))
sketch1.addConstraint(Sketcher.Constraint("DistanceX", 2, 2, 2, 1, 2.3))
sketch1.addConstraint(Sketcher.Constraint("DistanceX", 11, 2, 11, 1, 1.5))
sketch1.addConstraint(Sketcher.Constraint("DistanceX", 50, 2, 50, 1, 8.2))
sketch1.addConstraint(Sketcher.Constraint("DistanceX", 54, 2, 54, 1, 7.5))
sketch1.addConstraint(Sketcher.Constraint("DistanceX", 58, 2, 58, 1, 5.2))
sketch1.addConstraint(Sketcher.Constraint("DistanceX", 60, 1, 60, 2, 17.6))
sketch1.addConstraint(Sketcher.Constraint("DistanceY", 1, 1, 1, 2, 2.5))
sketch1.addConstraint(Sketcher.Constraint("DistanceY", 3, 1, 3, 2, 5.5))
sketch1.addConstraint(Sketcher.Constraint("DistanceY", 17, 1, 17, 2, 13.5))
sketch1.addConstraint(Sketcher.Constraint("DistanceY", 24, 1, 24, 2, 32.1))
sketch1.addConstraint(Sketcher.Constraint("DistanceY", 38, 1, 38, 2, 15.9))
sketch1.addConstraint(Sketcher.Constraint("DistanceY", 77, 2, 77, 1, 16.5))
sketch1.addConstraint(Sketcher.Constraint("DistanceY", -1, 1, 39, 3, 81.0))
sketch1.addConstraint(Sketcher.Constraint("DistanceY", 14, 2, 14, 1, 4.75))
sketch1.addConstraint(Sketcher.Constraint("DistanceY", 49, 2, 49, 1, 2.65))
sketch1.addConstraint(Sketcher.Constraint("DistanceX", -1, 1, 16, 2, 1.3))
sketch1.setExpression("Constraints[213]", "Params.sketch1_radius")
sketch1.setExpression("Constraints[214]", "Params.sketch1_width")
sketch1.setExpression("Constraints[215]", "Params.sketch1_width2")
sketch1.setExpression("Constraints[216]", "Params.sketch1_width3")
sketch1.setExpression("Constraints[217]", "Params.sketch1_width4")
pad1 = body.newObject("PartDesign::Pad", "Pad")
pad1.Profile = sketch1
pad1.setExpression("Length", "Params.pad1_length")

doc.recompute()
